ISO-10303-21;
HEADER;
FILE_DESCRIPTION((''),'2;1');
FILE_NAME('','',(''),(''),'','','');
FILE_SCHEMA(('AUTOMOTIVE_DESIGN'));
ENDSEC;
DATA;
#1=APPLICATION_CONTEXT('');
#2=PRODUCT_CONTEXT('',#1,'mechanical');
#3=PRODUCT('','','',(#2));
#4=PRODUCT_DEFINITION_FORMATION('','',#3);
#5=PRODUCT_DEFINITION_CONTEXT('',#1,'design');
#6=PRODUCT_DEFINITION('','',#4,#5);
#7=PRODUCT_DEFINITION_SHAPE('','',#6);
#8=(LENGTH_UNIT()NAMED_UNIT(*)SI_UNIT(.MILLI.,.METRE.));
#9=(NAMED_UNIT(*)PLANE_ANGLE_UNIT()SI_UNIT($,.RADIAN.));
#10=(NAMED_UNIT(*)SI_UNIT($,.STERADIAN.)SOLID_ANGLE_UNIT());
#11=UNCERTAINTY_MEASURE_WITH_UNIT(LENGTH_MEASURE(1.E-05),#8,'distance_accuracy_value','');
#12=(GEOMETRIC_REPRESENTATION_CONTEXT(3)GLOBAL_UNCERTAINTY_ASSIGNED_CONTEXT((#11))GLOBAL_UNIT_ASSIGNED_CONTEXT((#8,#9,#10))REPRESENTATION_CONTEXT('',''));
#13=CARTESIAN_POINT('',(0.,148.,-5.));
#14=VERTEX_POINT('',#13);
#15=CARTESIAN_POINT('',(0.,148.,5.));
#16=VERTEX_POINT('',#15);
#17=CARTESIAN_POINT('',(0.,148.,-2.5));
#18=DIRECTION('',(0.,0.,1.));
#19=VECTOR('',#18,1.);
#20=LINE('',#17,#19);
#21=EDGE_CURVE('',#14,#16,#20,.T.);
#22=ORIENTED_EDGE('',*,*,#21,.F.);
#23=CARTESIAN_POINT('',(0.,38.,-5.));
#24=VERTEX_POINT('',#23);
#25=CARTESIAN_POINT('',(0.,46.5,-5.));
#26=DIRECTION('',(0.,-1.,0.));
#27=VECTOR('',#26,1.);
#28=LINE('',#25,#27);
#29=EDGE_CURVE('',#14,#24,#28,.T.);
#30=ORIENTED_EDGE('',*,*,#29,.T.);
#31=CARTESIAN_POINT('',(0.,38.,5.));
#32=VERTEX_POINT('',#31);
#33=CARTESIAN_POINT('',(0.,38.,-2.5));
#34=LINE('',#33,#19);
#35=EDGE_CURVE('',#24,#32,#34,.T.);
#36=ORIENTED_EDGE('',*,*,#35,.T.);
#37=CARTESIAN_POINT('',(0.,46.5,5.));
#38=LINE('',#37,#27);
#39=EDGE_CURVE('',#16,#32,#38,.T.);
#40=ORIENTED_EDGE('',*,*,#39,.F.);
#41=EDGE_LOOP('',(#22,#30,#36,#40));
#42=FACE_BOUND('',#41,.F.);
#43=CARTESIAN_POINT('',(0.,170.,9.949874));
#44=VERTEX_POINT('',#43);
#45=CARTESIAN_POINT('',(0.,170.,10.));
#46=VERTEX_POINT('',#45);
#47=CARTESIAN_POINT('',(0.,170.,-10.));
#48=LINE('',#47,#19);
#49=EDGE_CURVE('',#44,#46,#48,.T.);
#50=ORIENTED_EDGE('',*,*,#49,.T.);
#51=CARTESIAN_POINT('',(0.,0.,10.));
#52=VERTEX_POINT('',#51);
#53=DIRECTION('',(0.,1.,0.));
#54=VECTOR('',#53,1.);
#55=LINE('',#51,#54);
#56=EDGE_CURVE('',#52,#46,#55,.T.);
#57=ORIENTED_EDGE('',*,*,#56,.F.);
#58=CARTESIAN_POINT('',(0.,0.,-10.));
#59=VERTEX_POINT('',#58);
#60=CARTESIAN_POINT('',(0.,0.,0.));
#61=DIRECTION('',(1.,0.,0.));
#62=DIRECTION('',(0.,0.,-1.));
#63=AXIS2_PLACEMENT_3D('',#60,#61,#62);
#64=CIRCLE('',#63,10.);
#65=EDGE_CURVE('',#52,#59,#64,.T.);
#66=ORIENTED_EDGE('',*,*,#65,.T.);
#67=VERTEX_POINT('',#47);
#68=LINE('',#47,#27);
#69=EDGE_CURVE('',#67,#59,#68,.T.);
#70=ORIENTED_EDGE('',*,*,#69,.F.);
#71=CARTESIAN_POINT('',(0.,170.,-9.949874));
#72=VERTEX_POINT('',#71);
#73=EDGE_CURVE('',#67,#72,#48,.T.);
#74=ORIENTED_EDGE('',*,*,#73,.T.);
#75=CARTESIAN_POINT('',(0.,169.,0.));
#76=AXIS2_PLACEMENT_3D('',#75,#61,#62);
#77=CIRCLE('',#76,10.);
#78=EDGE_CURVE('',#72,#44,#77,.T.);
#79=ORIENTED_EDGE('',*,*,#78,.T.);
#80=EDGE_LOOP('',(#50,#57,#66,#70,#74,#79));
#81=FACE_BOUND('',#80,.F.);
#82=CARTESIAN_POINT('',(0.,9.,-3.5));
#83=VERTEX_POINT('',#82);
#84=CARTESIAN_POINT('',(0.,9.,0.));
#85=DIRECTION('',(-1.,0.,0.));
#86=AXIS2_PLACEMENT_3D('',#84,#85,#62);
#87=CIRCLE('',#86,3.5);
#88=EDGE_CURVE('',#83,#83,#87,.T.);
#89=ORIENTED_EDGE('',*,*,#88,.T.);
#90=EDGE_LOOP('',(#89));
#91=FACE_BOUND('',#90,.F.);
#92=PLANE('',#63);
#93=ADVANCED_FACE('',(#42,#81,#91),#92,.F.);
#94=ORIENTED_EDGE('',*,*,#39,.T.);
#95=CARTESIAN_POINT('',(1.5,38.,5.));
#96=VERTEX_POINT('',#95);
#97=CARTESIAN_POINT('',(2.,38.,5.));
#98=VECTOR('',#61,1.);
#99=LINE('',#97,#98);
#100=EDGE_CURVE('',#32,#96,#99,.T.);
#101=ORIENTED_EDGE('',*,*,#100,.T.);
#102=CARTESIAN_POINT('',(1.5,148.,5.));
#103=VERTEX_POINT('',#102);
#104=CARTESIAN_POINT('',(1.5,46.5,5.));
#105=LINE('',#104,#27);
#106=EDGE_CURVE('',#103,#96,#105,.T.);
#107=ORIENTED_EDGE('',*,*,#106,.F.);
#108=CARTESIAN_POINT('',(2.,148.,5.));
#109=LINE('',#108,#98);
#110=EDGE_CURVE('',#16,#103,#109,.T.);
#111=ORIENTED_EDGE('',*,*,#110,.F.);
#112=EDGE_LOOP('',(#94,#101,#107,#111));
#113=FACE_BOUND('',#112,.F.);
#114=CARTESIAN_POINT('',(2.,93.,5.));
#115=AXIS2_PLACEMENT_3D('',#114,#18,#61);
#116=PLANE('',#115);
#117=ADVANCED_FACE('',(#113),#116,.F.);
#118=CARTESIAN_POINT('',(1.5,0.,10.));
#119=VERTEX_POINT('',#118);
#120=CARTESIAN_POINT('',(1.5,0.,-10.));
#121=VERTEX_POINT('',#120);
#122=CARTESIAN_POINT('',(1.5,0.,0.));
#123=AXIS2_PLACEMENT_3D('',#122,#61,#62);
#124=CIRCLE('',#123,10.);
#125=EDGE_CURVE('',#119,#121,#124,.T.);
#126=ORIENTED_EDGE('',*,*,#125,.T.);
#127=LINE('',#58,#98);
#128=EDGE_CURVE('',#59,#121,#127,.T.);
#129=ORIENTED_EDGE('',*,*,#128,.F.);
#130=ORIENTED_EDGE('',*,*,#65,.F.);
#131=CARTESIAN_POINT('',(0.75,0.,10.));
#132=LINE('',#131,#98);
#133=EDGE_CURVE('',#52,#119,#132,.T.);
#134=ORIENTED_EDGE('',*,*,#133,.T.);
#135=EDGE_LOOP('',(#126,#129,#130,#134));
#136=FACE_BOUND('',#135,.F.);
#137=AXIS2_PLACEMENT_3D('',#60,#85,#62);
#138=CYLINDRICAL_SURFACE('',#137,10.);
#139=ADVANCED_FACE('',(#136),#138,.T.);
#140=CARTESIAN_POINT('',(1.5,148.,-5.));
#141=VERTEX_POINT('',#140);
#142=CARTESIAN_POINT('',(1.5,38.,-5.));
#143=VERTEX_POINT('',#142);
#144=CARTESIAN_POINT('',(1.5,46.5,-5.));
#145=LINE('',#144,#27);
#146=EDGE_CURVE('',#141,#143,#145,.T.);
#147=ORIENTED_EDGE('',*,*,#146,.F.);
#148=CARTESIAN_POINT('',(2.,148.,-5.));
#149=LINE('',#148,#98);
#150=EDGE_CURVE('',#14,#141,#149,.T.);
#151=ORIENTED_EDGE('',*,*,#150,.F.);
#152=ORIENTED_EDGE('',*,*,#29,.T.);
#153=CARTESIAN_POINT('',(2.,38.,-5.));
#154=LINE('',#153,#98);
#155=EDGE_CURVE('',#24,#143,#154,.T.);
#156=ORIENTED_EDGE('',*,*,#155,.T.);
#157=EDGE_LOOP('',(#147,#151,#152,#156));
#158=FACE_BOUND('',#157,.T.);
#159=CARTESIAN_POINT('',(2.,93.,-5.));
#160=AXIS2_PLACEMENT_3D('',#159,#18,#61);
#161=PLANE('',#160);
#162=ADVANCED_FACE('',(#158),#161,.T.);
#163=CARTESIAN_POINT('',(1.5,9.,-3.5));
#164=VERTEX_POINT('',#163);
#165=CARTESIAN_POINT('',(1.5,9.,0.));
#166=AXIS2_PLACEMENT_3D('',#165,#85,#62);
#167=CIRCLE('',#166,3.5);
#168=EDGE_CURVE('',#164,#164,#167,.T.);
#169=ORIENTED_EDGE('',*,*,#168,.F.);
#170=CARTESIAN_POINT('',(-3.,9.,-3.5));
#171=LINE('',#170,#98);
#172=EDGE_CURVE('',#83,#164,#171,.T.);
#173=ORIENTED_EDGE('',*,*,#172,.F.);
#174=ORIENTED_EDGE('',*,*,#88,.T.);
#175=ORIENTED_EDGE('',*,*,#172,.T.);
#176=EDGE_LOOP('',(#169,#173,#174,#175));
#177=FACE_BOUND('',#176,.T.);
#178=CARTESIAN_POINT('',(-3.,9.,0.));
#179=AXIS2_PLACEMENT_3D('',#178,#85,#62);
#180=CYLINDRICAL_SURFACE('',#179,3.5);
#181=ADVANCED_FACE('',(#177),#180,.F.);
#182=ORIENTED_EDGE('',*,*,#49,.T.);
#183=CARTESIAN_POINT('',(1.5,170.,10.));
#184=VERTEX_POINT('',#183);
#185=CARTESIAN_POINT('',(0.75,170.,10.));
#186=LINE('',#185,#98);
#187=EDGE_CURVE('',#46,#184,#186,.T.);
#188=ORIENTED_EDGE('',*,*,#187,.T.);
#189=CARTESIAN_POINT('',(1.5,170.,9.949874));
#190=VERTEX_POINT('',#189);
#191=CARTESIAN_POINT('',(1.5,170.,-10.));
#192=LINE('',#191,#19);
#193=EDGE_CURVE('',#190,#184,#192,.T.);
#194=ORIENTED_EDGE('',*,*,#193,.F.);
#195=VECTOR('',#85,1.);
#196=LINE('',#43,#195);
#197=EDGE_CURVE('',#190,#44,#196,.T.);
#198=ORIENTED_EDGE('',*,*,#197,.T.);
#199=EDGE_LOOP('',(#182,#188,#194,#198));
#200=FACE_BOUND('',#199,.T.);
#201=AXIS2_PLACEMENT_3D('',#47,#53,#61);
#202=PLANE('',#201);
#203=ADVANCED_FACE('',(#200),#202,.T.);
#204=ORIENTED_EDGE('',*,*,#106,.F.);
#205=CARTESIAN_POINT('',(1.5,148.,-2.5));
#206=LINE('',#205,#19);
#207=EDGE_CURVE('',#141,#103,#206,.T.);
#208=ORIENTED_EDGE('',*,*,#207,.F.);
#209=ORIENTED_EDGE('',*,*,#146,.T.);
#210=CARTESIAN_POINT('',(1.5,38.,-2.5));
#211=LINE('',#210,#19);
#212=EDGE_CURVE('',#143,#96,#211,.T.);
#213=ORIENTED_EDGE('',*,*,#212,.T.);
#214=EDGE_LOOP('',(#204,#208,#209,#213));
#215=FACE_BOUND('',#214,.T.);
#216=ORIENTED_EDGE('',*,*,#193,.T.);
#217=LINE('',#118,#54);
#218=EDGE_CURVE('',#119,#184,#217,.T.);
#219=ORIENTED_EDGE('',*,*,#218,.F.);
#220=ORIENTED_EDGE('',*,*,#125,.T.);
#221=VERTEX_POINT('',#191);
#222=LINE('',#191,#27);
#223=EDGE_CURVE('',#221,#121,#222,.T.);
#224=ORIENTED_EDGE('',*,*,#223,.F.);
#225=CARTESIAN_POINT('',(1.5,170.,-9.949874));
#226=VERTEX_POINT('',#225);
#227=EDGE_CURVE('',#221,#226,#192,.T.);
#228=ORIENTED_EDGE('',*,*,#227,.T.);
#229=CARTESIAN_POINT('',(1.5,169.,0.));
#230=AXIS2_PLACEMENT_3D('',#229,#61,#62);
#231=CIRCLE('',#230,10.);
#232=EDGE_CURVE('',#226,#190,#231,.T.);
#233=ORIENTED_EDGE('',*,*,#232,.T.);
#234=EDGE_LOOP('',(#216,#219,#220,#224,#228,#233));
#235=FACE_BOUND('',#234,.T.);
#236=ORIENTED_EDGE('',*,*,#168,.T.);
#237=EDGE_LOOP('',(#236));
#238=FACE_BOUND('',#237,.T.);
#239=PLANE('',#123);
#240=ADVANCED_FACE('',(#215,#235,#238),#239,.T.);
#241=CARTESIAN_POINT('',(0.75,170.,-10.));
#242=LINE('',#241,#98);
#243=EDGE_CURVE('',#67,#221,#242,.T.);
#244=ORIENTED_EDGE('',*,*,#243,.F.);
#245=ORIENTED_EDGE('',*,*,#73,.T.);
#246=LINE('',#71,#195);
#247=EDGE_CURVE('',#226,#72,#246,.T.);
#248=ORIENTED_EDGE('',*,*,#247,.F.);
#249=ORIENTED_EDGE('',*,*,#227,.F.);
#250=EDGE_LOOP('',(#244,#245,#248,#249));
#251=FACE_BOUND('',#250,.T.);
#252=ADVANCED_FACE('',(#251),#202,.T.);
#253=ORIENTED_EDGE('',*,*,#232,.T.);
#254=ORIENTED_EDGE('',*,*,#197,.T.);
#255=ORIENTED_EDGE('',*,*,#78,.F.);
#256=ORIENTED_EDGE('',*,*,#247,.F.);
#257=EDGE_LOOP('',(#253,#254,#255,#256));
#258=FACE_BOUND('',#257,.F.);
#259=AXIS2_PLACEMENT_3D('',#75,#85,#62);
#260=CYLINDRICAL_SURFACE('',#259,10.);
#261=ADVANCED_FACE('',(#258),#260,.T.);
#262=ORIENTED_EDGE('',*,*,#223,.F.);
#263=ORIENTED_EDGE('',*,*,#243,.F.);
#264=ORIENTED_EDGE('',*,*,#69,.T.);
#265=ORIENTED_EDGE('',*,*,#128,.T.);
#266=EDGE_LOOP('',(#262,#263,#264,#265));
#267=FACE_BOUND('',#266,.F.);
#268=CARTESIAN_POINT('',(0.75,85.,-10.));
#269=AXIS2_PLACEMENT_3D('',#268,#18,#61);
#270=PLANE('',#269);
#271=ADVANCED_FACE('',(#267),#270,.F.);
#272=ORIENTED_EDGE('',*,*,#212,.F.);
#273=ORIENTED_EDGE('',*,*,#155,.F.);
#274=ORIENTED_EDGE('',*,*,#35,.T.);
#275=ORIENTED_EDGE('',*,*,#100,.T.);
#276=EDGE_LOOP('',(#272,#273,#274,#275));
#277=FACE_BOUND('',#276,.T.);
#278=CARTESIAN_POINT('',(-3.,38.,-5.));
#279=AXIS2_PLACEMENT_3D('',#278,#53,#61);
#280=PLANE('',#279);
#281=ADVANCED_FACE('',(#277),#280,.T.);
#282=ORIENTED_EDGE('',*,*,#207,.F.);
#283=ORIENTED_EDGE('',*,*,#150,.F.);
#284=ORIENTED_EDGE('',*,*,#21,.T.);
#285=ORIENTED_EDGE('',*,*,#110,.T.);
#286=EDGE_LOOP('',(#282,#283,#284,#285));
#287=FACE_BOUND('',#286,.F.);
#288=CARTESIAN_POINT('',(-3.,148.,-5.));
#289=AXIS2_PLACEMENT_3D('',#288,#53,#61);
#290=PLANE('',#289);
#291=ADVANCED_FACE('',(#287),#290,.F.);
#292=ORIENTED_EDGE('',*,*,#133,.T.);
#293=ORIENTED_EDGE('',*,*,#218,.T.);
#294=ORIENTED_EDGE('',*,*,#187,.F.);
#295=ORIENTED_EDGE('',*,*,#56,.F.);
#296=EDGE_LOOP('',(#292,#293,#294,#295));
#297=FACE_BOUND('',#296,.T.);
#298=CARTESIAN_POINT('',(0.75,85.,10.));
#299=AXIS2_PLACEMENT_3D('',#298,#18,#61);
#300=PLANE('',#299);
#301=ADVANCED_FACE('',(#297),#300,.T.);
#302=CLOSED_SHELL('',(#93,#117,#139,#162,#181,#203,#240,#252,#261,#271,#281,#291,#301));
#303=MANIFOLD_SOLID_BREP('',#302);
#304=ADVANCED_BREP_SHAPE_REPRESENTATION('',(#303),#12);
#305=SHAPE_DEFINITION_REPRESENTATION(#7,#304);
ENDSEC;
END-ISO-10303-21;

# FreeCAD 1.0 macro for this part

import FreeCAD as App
import Part
import Sketcher

doc = App.newDocument("Part")
params = doc.addObject("Spreadsheet::Sheet", "Params")
for row, (alias, value) in enumerate([
    ("sketch1_diameter", "7 mm"),
    ("pad1_length", "10 mm"),
    ("sketch2_width", "10 mm"),
    ("sketch2_height", "110 mm"),
    ("pad2_length", "10 mm"),
    ("sketch3_diameter", "20 mm"),
    ("pad3_length", "1.5 mm"),
    ("sketch4_height", "170 mm"),
    ("sketch4_width", "1.5 mm"),
    ("pad4_length", "20 mm"),
    ("sketch5_diameter", "20 mm"),
    ("pad5_length", "1.5 mm"),
], start=1):
    params.set(f"A{row}", alias)
    params.set(f"B{row}", "=" + value)
    params.setAlias(f"B{row}", alias)

body = doc.addObject("PartDesign::Body", "Body")

# Sketch on YZ plane
sketch1 = body.newObject("Sketcher::SketchObject", "Sketch")
sketch1.AttachmentSupport = (doc.getObject("YZ_Plane"), [""])
sketch1.MapMode = "FlatFace"
sketch1.AttachmentOffset = App.Placement(App.Vector(0, 0, -3), App.Rotation())
sketch1.addGeometry(Part.Circle(App.Vector(9, 0, 0), App.Vector(0, 0, 1), 3.5), False)
sketch1.addConstraint(Sketcher.Constraint("PointOnObject", 0, 3, -1))
sketch1.addConstraint(Sketcher.Constraint("Diameter", 0, 7.0))
sketch1.addConstraint(Sketcher.Constraint("DistanceX", -1, 1, 0, 3, 9.0))
sketch1.setExpression("Constraints[1]", "Params.sketch1_diameter")
pad1 = body.newObject("PartDesign::Pad", "Pad")
pad1.Profile = sketch1
pad1.setExpression("Length", "Params.pad1_length")
body2 = doc.addObject("PartDesign::Body", "Body001")

# Sketch on XY plane
sketch2 = body2.newObject("Sketcher::SketchObject", "Sketch001")
sketch2.AttachmentSupport = (doc.getObject("XY_Plane001"), [""])
sketch2.MapMode = "FlatFace"
sketch2.AttachmentOffset = App.Placement(App.Vector(0, 0, -5), App.Rotation())
sketch2.addGeometry(Part.LineSegment(App.Vector(-3, 148, 0), App.Vector(-3, 38, 0)), False)
sketch2.addGeometry(Part.LineSegment(App.Vector(-3, 38, 0), App.Vector(7, 38, 0)), False)
sketch2.addGeometry(Part.LineSegment(App.Vector(7, 38, 0), App.Vector(7, 148, 0)), False)
sketch2.addGeometry(Part.LineSegment(App.Vector(7, 148, 0), App.Vector(-3, 148, 0)), False)
sketch2.addConstraint(Sketcher.Constraint("Coincident", 0, 2, 1, 1))
sketch2.addConstraint(Sketcher.Constraint("Coincident", 1, 2, 2, 1))
sketch2.addConstraint(Sketcher.Constraint("Coincident", 2, 2, 3, 1))
sketch2.addConstraint(Sketcher.Constraint("Coincident", 3, 2, 0, 1))
sketch2.addConstraint(Sketcher.Constraint("Vertical", 0))
sketch2.addConstraint(Sketcher.Constraint("Horizontal", 1))
sketch2.addConstraint(Sketcher.Constraint("Vertical", 2))
sketch2.addConstraint(Sketcher.Constraint("Horizontal", 3))
sketch2.addConstraint(Sketcher.Constraint("DistanceX", 1, 1, 1, 2, 10.0))
sketch2.addConstraint(Sketcher.Constraint("DistanceY", 0, 2, 0, 1, 110.0))
sketch2.addConstraint(Sketcher.Constraint("DistanceX", 0, 2, -1, 1, 3.0))
sketch2.addConstraint(Sketcher.Constraint("DistanceY", -1, 1, 0, 2, 38.0))
sketch2.setExpression("Constraints[8]", "Params.sketch2_width")
sketch2.setExpression("Constraints[9]", "Params.sketch2_height")
pad2 = body2.newObject("PartDesign::Pad", "Pad001")
pad2.Profile = sketch2
pad2.setExpression("Length", "Params.pad2_length")
body3 = doc.addObject("PartDesign::Body", "Body002")

# Sketch on YZ plane
sketch3 = body3.newObject("Sketcher::SketchObject", "Sketch002")
sketch3.AttachmentSupport = (doc.getObject("YZ_Plane002"), [""])
sketch3.MapMode = "FlatFace"
sketch3.addGeometry(Part.Circle(App.Vector(169, 0, 0), App.Vector(0, 0, 1), 10), False)
sketch3.addConstraint(Sketcher.Constraint("PointOnObject", 0, 3, -1))
sketch3.addConstraint(Sketcher.Constraint("Diameter", 0, 20.0))
sketch3.addConstraint(Sketcher.Constraint("DistanceX", -1, 1, 0, 3, 169.0))
sketch3.setExpression("Constraints[1]", "Params.sketch3_diameter")
pad3 = body3.newObject("PartDesign::Pad", "Pad002")
pad3.Profile = sketch3
pad3.setExpression("Length", "Params.pad3_length")
body4 = doc.addObject("PartDesign::Body", "Body003")

# Sketch on XY plane
sketch4 = body4.newObject("Sketcher::SketchObject", "Sketch003")
sketch4.AttachmentSupport = (doc.getObject("XY_Plane003"), [""])
sketch4.MapMode = "FlatFace"
sketch4.AttachmentOffset = App.Placement(App.Vector(0, 0, -10), App.Rotation())
sketch4.addGeometry(Part.LineSegment(App.Vector(0, 170, 0), App.Vector(0, 0, 0)), False)
sketch4.addGeometry(Part.LineSegment(App.Vector(0, 0, 0), App.Vector(1.5, 0, 0)), False)
sketch4.addGeometry(Part.LineSegment(App.Vector(1.5, 0, 0), App.Vector(1.5, 170, 0)), False)
sketch4.addGeometry(Part.LineSegment(App.Vector(1.5, 170, 0), App.Vector(0, 170, 0)), False)
sketch4.addConstraint(Sketcher.Constraint("Coincident", 0, 2, 1, 1))
sketch4.addConstraint(Sketcher.Constraint("Coincident", 1, 2, 2, 1))
sketch4.addConstraint(Sketcher.Constraint("Coincident", 2, 2, 3, 1))
sketch4.addConstraint(Sketcher.Constraint("Coincident", 3, 2, 0, 1))
sketch4.addConstraint(Sketcher.Constraint("Vertical", 0))
sketch4.addConstraint(Sketcher.Constraint("Horizontal", 1))
sketch4.addConstraint(Sketcher.Constraint("Vertical", 2))
sketch4.addConstraint(Sketcher.Constraint("Horizontal", 3))
sketch4.addConstraint(Sketcher.Constraint("Coincident", 0, 2, -1, 1))
sketch4.addConstraint(Sketcher.Constraint("DistanceY", 0, 2, 0, 1, 170.0))
sketch4.addConstraint(Sketcher.Constraint("DistanceX", 1, 1, 1, 2, 1.5))
sketch4.setExpression("Constraints[9]", "Params.sketch4_height")
sketch4.setExpression("Constraints[10]", "Params.sketch4_width")
pad4 = body4.newObject("PartDesign::Pad", "Pad003")
pad4.Profile = sketch4
pad4.setExpression("Length", "Params.pad4_length")
body5 = doc.addObject("PartDesign::Body", "Body004")
body5.AllowCompound = True

# Sketch on YZ plane
sketch5 = body5.newObject("Sketcher::SketchObject", "Sketch004")
sketch5.AttachmentSupport = (doc.getObject("YZ_Plane004"), [""])
sketch5.MapMode = "FlatFace"
sketch5.addGeometry(Part.Circle(App.Vector(0, 0, 0), App.Vector(0, 0, 1), 10), False)
sketch5.addConstraint(Sketcher.Constraint("Coincident", 0, 3, -1, 1))
sketch5.addConstraint(Sketcher.Constraint("Diameter", 0, 20.0))
sketch5.setExpression("Constraints[1]", "Params.sketch5_diameter")
pad5 = body5.newObject("PartDesign::Pad", "Pad004")
pad5.Profile = sketch5
pad5.setExpression("Length", "Params.pad5_length")
doc.recompute()

boolean = body5.newObject("PartDesign::Boolean", "Boolean")
boolean.Type = "Fuse"
boolean.addObjects([body3])
doc.recompute()

boolean2 = body5.newObject("PartDesign::Boolean", "Boolean001")
boolean2.Type = "Fuse"
boolean2.addObjects([body4])
doc.recompute()

boolean3 = body5.newObject("PartDesign::Boolean", "Boolean002")
boolean3.Type = "Cut"
boolean3.addObjects([body2])
doc.recompute()

boolean4 = body5.newObject("PartDesign::Boolean", "Boolean003")
boolean4.Type = "Cut"
boolean4.addObjects([body])

doc.recompute()
